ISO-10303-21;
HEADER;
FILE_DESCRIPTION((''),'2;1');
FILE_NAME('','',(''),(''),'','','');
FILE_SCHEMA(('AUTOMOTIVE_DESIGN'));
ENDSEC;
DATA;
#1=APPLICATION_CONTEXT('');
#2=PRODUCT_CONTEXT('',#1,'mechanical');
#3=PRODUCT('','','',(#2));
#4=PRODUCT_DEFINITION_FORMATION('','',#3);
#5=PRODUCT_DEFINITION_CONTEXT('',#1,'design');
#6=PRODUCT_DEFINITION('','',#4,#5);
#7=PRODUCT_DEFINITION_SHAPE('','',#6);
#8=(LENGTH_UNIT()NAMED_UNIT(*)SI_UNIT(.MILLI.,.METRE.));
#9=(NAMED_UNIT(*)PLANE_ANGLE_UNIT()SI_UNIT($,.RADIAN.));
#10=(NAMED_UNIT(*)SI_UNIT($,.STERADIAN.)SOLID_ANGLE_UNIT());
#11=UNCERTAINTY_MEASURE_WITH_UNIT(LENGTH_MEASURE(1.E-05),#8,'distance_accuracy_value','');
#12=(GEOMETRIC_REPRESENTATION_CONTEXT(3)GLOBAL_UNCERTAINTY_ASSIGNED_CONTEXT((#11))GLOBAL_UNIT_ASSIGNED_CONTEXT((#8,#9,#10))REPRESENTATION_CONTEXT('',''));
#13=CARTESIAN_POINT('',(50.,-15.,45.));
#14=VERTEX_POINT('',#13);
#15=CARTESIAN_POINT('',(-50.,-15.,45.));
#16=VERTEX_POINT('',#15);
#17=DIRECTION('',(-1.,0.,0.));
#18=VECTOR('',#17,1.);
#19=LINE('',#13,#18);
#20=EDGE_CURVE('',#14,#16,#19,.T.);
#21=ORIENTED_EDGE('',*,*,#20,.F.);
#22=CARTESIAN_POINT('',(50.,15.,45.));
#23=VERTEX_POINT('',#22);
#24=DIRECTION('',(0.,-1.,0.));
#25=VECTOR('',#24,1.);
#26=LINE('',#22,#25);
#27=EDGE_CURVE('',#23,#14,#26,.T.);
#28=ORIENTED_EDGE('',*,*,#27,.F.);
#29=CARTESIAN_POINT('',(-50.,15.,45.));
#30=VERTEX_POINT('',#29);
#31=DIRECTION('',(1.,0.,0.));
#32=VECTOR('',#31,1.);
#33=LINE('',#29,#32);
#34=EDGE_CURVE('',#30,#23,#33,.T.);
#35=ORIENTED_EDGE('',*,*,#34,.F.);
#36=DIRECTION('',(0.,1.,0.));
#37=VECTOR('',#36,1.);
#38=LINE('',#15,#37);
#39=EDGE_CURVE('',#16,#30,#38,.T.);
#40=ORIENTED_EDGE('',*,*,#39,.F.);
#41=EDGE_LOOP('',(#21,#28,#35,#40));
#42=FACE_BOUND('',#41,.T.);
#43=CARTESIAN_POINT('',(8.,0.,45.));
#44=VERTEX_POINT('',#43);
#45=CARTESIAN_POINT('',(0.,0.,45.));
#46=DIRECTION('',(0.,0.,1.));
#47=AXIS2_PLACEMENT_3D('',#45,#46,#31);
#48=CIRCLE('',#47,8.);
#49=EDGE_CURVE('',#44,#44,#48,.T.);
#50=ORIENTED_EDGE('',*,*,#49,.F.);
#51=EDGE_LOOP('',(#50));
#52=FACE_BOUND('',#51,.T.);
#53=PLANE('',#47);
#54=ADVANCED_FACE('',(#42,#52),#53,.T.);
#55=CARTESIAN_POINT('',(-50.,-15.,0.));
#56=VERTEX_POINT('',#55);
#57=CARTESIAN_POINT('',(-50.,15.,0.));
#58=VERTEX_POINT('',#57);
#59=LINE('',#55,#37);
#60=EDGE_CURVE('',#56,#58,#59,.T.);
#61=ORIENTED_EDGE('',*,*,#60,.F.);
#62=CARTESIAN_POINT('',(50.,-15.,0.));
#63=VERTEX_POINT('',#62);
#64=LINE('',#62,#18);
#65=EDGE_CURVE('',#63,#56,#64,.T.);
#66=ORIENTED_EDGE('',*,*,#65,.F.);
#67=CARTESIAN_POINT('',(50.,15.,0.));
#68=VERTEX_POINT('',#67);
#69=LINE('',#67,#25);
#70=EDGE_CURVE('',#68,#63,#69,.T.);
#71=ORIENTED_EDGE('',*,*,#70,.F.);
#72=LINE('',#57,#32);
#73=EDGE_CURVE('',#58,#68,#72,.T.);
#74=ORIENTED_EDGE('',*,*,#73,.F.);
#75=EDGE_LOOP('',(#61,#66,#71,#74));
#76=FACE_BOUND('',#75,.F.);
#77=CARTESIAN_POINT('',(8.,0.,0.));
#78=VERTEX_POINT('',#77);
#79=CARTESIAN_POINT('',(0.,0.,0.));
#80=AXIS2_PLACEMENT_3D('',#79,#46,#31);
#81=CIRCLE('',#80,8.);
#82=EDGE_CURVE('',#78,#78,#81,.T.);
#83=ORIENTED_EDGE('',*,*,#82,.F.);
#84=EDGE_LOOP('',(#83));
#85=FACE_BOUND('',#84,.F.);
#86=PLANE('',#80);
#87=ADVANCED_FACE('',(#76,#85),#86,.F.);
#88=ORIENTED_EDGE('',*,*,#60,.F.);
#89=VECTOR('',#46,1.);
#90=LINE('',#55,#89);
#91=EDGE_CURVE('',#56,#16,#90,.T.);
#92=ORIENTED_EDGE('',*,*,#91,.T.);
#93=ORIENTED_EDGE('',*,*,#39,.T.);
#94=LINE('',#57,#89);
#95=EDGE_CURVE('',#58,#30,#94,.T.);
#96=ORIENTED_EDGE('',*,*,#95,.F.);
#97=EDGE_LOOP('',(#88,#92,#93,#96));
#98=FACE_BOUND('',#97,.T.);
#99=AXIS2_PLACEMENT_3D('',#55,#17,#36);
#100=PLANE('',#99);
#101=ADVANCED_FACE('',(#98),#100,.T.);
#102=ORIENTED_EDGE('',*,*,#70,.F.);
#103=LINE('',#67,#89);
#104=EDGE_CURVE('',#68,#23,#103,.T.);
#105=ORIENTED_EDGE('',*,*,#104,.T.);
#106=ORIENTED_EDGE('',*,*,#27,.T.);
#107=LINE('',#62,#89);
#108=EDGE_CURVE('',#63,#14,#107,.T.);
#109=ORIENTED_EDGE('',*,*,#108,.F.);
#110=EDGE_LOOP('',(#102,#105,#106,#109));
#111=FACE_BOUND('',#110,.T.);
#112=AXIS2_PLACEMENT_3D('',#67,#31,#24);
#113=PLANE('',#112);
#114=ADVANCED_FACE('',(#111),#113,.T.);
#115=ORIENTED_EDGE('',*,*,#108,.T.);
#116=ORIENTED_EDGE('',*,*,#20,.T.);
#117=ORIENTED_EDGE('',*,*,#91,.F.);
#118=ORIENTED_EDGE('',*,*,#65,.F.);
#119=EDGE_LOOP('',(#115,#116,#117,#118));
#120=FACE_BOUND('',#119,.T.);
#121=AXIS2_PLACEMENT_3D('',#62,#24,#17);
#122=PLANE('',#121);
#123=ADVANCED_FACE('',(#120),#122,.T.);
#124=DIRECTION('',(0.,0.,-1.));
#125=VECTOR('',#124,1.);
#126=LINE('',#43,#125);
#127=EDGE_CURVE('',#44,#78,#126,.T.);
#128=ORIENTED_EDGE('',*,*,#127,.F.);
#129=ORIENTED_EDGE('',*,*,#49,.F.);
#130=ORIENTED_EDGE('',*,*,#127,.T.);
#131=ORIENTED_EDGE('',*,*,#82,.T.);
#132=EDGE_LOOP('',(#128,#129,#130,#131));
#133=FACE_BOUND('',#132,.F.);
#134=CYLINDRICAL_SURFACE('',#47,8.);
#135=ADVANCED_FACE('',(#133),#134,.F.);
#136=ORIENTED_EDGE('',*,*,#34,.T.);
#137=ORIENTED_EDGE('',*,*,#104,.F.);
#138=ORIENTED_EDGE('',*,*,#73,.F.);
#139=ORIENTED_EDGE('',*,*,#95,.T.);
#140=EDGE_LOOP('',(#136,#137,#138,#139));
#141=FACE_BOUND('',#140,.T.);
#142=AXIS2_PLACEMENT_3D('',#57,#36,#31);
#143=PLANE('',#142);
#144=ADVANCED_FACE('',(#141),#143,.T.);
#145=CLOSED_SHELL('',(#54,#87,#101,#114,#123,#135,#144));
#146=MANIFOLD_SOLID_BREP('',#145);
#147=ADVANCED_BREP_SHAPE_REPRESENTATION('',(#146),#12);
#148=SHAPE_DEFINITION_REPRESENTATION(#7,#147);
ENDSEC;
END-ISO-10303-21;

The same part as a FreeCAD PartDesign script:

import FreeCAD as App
import Part
import Sketcher

doc = App.newDocument("Part")
body = doc.addObject("PartDesign::Body", "Body")

sketch1 = body.newObject("Sketcher::SketchObject", "Sketch")
sketch1.AttachmentSupport = (doc.getObject("XY_Plane"), [""])
sketch1.MapMode = "FlatFace"
sketch1.addGeometry(Part.LineSegment(App.Vector(50, 15, 0), App.Vector(-50, 15, 0)), False)
sketch1.addGeometry(Part.LineSegment(App.Vector(-50, 15, 0), App.Vector(-50, -15, 0)), False)
sketch1.addGeometry(Part.LineSegment(App.Vector(-50, -15, 0), App.Vector(50, -15, 0)), False)
sketch1.addGeometry(Part.LineSegment(App.Vector(50, -15, 0), App.Vector(50, 15, 0)), False)
sketch1.addConstraint(Sketcher.Constraint("Coincident", 0, 2, 1, 1))
sketch1.addConstraint(Sketcher.Constraint("Coincident", 1, 2, 2, 1))
sketch1.addConstraint(Sketcher.Constraint("Coincident", 2, 2, 3, 1))
sketch1.addConstraint(Sketcher.Constraint("Coincident", 3, 2, 0, 1))
sketch1.addConstraint(Sketcher.Constraint("Horizontal", 0))
sketch1.addConstraint(Sketcher.Constraint("Vertical", 1))
sketch1.addConstraint(Sketcher.Constraint("Horizontal", 2))
sketch1.addConstraint(Sketcher.Constraint("Vertical", 3))
sketch1.addConstraint(Sketcher.Constraint("Symmetric", 0, 2, 2, 2, -1, 1))
sketch1.addConstraint(Sketcher.Constraint("DistanceX", 0, 2, 0, 1, 100.0))
sketch1.addConstraint(Sketcher.Constraint("DistanceY", 1, 2, 1, 1, 30.0))
pad1 = body.newObject("PartDesign::Pad", "Pad")
pad1.Profile = sketch1
pad1.Length = 45

sketch2 = body.newObject("Sketcher::SketchObject", "Sketch001")
sketch2.AttachmentSupport = (doc.getObject("XY_Plane"), [""])
sketch2.MapMode = "FlatFace"
sketch2.AttachmentOffset = App.Placement(App.Vector(0, 0, 45), App.Rotation())
sketch2.addGeometry(Part.Circle(App.Vector(0, 0, 0), App.Vector(0, 0, 1), 8), False)
sketch2.addConstraint(Sketcher.Constraint("Coincident", 0, 3, -1, 1))
sketch2.addConstraint(Sketcher.Constraint("Diameter", 0, 16.0))
pocket1 = body.newObject("PartDesign::Pocket", "Pocket")
pocket1.Profile = sketch2
pocket1.Type = "ThroughAll"

doc.recompute()
